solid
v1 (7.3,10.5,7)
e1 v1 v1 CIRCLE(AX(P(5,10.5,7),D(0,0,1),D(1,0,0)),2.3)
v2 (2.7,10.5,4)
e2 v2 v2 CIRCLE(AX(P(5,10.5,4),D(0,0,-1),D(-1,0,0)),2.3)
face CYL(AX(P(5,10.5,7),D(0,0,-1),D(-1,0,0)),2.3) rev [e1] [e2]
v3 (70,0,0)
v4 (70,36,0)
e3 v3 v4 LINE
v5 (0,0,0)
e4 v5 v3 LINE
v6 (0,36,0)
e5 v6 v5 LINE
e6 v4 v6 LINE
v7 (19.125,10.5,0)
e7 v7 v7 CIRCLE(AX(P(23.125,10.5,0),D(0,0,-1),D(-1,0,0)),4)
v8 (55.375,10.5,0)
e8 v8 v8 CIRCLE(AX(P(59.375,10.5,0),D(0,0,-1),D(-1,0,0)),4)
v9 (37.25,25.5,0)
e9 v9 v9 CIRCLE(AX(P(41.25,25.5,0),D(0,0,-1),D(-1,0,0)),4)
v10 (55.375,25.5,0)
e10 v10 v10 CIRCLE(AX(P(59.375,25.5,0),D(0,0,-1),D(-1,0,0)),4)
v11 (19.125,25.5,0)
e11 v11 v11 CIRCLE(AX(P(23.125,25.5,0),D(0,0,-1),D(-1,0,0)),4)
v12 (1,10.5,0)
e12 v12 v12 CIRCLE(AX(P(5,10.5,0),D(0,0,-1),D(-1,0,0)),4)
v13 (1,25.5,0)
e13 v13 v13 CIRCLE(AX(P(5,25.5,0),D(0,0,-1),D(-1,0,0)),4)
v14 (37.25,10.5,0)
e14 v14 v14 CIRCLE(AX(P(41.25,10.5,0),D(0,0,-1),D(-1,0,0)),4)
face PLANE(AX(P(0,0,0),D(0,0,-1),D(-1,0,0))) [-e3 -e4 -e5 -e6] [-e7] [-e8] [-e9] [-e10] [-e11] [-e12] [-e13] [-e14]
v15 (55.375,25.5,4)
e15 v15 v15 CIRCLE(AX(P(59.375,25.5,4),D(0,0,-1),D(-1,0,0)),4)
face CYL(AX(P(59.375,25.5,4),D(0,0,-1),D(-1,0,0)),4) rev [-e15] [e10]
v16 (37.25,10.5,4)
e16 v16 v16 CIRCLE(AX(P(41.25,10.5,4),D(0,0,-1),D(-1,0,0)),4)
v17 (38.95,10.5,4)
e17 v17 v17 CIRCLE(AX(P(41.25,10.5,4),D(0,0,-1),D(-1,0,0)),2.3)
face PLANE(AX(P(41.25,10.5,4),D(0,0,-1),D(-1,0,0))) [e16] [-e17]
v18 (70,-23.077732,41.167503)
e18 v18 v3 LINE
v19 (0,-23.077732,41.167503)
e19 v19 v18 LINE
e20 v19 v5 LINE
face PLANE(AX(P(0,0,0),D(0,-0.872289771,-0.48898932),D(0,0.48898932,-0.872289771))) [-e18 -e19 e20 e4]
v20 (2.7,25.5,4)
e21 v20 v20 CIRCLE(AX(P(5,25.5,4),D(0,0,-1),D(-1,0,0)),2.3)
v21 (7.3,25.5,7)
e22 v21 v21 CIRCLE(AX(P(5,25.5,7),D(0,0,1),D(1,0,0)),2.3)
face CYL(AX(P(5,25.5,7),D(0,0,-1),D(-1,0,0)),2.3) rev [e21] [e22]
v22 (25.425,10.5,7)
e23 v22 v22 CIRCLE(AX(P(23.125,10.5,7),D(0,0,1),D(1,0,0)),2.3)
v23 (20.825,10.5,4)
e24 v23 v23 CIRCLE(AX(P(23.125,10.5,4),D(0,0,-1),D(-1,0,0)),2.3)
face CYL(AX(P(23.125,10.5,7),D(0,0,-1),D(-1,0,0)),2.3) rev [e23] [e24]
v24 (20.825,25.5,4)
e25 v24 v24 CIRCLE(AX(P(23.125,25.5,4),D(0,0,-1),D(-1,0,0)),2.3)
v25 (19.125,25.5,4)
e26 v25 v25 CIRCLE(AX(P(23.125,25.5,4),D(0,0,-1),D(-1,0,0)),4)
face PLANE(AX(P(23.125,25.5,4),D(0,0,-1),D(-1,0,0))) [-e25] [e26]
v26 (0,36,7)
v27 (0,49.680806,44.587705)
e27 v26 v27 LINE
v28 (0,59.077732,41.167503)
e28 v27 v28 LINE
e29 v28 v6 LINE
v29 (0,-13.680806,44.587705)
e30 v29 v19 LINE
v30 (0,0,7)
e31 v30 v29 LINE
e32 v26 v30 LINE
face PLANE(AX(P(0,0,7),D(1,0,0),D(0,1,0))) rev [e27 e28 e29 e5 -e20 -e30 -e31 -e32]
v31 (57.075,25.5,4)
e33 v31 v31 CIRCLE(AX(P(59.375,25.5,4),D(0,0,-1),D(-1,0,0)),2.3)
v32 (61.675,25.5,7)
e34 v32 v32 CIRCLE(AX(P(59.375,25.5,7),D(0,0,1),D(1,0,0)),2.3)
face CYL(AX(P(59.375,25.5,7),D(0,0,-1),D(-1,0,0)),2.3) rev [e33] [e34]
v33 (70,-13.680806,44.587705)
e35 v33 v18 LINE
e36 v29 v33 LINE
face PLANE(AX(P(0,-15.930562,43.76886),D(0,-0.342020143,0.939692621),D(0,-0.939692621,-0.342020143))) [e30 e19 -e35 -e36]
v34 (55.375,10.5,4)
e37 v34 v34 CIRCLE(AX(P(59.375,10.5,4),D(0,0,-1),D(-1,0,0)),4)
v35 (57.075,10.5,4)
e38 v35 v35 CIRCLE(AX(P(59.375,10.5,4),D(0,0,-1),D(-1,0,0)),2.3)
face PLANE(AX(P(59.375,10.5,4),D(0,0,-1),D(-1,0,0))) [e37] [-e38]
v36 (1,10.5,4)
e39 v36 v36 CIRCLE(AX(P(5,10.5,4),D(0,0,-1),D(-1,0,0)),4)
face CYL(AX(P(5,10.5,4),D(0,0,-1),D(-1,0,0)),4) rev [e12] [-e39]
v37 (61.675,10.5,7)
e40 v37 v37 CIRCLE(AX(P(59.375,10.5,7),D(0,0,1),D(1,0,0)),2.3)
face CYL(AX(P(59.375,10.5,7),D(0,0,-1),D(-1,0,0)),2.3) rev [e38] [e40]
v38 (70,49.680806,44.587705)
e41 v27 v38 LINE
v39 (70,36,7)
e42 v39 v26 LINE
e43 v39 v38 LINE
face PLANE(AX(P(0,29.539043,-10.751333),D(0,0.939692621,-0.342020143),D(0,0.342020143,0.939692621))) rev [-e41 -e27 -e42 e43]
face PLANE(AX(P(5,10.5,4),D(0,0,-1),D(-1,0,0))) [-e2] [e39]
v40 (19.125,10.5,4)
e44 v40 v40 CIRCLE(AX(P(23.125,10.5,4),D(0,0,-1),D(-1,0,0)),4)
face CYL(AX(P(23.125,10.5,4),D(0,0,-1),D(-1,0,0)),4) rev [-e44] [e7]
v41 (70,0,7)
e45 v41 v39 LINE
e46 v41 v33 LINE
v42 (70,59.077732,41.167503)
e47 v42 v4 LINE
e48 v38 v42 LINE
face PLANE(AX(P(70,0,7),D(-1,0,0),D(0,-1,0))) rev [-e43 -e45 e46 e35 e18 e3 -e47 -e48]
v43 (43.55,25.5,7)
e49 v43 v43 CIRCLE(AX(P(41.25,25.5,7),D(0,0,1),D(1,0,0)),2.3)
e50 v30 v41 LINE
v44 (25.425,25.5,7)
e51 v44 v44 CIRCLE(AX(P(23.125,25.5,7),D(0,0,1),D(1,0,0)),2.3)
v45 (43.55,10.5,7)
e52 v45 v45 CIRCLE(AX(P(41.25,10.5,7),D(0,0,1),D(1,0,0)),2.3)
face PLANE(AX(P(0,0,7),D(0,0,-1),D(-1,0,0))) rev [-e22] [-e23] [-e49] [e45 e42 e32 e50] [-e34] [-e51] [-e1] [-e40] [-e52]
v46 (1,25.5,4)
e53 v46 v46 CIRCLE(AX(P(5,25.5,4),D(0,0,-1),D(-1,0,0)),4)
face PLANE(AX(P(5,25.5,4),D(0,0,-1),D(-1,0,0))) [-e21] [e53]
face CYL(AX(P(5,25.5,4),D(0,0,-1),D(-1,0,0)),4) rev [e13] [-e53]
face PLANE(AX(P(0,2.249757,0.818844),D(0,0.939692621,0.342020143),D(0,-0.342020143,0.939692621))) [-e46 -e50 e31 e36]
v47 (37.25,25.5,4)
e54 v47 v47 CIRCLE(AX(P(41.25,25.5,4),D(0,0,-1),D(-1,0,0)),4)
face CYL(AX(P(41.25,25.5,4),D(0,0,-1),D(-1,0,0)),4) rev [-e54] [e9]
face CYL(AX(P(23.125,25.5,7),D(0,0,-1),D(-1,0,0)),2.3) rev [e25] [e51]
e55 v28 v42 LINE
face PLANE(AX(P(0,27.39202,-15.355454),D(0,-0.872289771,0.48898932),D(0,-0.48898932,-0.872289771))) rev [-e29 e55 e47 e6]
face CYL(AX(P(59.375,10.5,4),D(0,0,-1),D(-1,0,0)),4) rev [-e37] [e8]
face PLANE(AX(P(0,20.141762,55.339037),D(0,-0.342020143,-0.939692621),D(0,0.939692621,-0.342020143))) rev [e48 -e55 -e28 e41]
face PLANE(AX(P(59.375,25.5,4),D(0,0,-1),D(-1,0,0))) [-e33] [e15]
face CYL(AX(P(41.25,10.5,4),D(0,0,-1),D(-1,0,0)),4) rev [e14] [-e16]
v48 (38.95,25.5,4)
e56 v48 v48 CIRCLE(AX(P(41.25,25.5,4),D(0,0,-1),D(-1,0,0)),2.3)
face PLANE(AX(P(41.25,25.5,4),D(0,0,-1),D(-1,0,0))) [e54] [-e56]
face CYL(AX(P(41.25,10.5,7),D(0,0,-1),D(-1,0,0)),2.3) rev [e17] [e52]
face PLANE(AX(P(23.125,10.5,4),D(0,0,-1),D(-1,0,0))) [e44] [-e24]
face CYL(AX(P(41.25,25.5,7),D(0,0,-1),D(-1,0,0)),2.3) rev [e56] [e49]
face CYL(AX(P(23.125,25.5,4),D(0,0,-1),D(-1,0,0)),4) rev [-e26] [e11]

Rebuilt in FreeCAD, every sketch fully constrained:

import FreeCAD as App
import Part
import Sketcher
Q = App.Units.Quantity


def add_polygon(sketch, points):
    """Adds a closed chain of lines whose ends are joined by coincident constraints."""
    first, n = sketch.GeometryCount, len(points)
    for a, b in zip(points, points[1:] + points[:1]):
        sketch.addGeometry(Part.LineSegment(App.Vector(*a, 0), App.Vector(*b, 0)), False)
    for i in range(n):
        sketch.addConstraint(Sketcher.Constraint("Coincident", first + i, 2, first + (i + 1) % n, 1))

doc = App.newDocument("Part")
body = doc.addObject("PartDesign::Body", "Body")

# Sketch on XY plane
sketch1 = body.newObject("Sketcher::SketchObject", "Sketch")
sketch1.AttachmentSupport = (doc.getObject("XY_Plane"), [""])
sketch1.MapMode = "FlatFace"
add_polygon(sketch1, [(0, 36), (0, 0), (70, 0), (70, 36)])  # lines 0-3
sketch1.addGeometry(Part.Circle(App.Vector(5, 10.5, 0), App.Vector(0, 0, 1), 2.3), False)  # 4
sketch1.addGeometry(Part.Circle(App.Vector(23.1, 10.5, 0), App.Vector(0, 0, 1), 2.3), False)  # 5
sketch1.addGeometry(Part.Circle(App.Vector(41.2, 10.5, 0), App.Vector(0, 0, 1), 2.3), False)  # 6
sketch1.addGeometry(Part.Circle(App.Vector(59.4, 10.5, 0), App.Vector(0, 0, 1), 2.3), False)  # 7
sketch1.addGeometry(Part.Circle(App.Vector(5, 25.5, 0), App.Vector(0, 0, 1), 2.3), False)  # 8
sketch1.addGeometry(Part.Circle(App.Vector(23.1, 25.5, 0), App.Vector(0, 0, 1), 2.3), False)  # 9
sketch1.addGeometry(Part.Circle(App.Vector(41.2, 25.5, 0), App.Vector(0, 0, 1), 2.3), False)  # 10
sketch1.addGeometry(Part.Circle(App.Vector(59.4, 25.5, 0), App.Vector(0, 0, 1), 2.3), False)  # 11
sketch1.addConstraint([
    Sketcher.Constraint("Vertical", 0),
    Sketcher.Constraint("Horizontal", 1),
    Sketcher.Constraint("Vertical", 2),
    Sketcher.Constraint("Horizontal", 3),
    Sketcher.Constraint("Coincident", 0, 2, -1, 1),
    Sketcher.Constraint("Equal", 4, 5),
    Sketcher.Constraint("Equal", 5, 6),
    Sketcher.Constraint("Equal", 6, 7),
    Sketcher.Constraint("Equal", 7, 8),
    Sketcher.Constraint("Equal", 8, 9),
    Sketcher.Constraint("Equal", 9, 10),
    Sketcher.Constraint("Equal", 10, 11),
    Sketcher.Constraint("Horizontal", 4, 3, 5, 3),
    Sketcher.Constraint("Horizontal", 5, 3, 6, 3),
    Sketcher.Constraint("Horizontal", 6, 3, 7, 3),
    Sketcher.Constraint("Horizontal", 8, 3, 9, 3),
    Sketcher.Constraint("Horizontal", 9, 3, 10, 3),
    Sketcher.Constraint("Horizontal", 10, 3, 11, 3),
    Sketcher.Constraint("Vertical", 4, 3, 8, 3),
    Sketcher.Constraint("Vertical", 5, 3, 9, 3),
    Sketcher.Constraint("Vertical", 6, 3, 10, 3),
    Sketcher.Constraint("Vertical", 7, 3, 11, 3),
    Sketcher.Constraint("Diameter", 4, Q("4.6 mm")),
    Sketcher.Constraint("DistanceX", 1, 1, 1, 2, Q("70 mm")),
    Sketcher.Constraint("DistanceY", 0, 2, 0, 1, Q("36 mm")),
    Sketcher.Constraint("DistanceX", -1, 1, 4, 3, Q("5 mm")),
    Sketcher.Constraint("DistanceY", 4, 3, 8, 3, Q("15 mm")),
    Sketcher.Constraint("DistanceY", -1, 1, 4, 3, Q("10.5 mm")),
    Sketcher.Constraint("DistanceX", -1, 1, 6, 3, Q("41.25 mm")),
    Sketcher.Constraint("DistanceX", 5, 3, 7, 3, Q("36.25 mm")),
    Sketcher.Constraint("DistanceX", -1, 1, 5, 3, Q("23.125 mm")),
])
pad1 = body.newObject("PartDesign::Pad", "Pad")
pad1.Profile = sketch1
pad1.Length = 7

# Sketch on XY plane
sketch2 = body.newObject("Sketcher::SketchObject", "Sketch001")
sketch2.AttachmentSupport = (doc.getObject("XY_Plane"), [""])
sketch2.MapMode = "FlatFace"
sketch2.addGeometry([
    Part.Circle(App.Vector(59.4, 25.5, 0), App.Vector(0, 0, 1), 4),  # 0
    Part.Circle(App.Vector(41.2, 25.5, 0), App.Vector(0, 0, 1), 4),  # 1
    Part.Circle(App.Vector(23.1, 25.5, 0), App.Vector(0, 0, 1), 4),  # 2
    Part.Circle(App.Vector(5, 25.5, 0), App.Vector(0, 0, 1), 4),  # 3
    Part.Circle(App.Vector(5, 10.5, 0), App.Vector(0, 0, 1), 4),  # 4
    Part.Circle(App.Vector(23.1, 10.5, 0), App.Vector(0, 0, 1), 4),  # 5
    Part.Circle(App.Vector(41.2, 10.5, 0), App.Vector(0, 0, 1), 4),  # 6
    Part.Circle(App.Vector(59.4, 10.5, 0), App.Vector(0, 0, 1), 4),  # 7
], False)
sketch2.addConstraint([
    Sketcher.Constraint("Equal", 0, 1),
    Sketcher.Constraint("Equal", 1, 2),
    Sketcher.Constraint("Equal", 2, 3),
    Sketcher.Constraint("Equal", 3, 4),
    Sketcher.Constraint("Equal", 4, 5),
    Sketcher.Constraint("Equal", 5, 6),
    Sketcher.Constraint("Equal", 6, 7),
    Sketcher.Constraint("Horizontal", 0, 3, 1, 3),
    Sketcher.Constraint("Horizontal", 1, 3, 2, 3),
    Sketcher.Constraint("Horizontal", 2, 3, 3, 3),
    Sketcher.Constraint("Horizontal", 4, 3, 5, 3),
    Sketcher.Constraint("Horizontal", 5, 3, 6, 3),
    Sketcher.Constraint("Horizontal", 6, 3, 7, 3),
    Sketcher.Constraint("Vertical", 3, 3, 4, 3),
    Sketcher.Constraint("Vertical", 2, 3, 5, 3),
    Sketcher.Constraint("Vertical", 1, 3, 6, 3),
    Sketcher.Constraint("Vertical", 0, 3, 7, 3),
    Sketcher.Constraint("Diameter", 0, Q("8 mm")),
    Sketcher.Constraint("DistanceX", -1, 1, 3, 3, Q("5 mm")),
    Sketcher.Constraint("DistanceY", 4, 3, 3, 3, Q("15 mm")),
    Sketcher.Constraint("DistanceY", -1, 1, 0, 3, Q("25.5 mm")),
    Sketcher.Constraint("DistanceX", -1, 1, 1, 3, Q("41.25 mm")),
    Sketcher.Constraint("DistanceX", 2, 3, 0, 3, Q("36.25 mm")),
    Sketcher.Constraint("DistanceX", -1, 1, 0, 3, Q("59.375 mm")),
])
pocket1 = body.newObject("PartDesign::Pocket", "Pocket")
pocket1.Profile = sketch2
pocket1.Length = 4
pocket1.Reversed = True

# Sketch on YZ plane
sketch3 = body.newObject("Sketcher::SketchObject", "Sketch002")
sketch3.AttachmentSupport = (doc.getObject("YZ_Plane"), [""])
sketch3.MapMode = "FlatFace"
sketch3.AttachmentOffset = App.Placement(App.Vector(0, 0, 70), App.Rotation())
add_polygon(sketch3, [(36, 0), (59, 41), (50, 45), (36, 7)])  # lines 0-3
add_polygon(sketch3, [(-14, 45), (-23, 41), (0, 0), (0, 7)])  # lines 4-7
sketch3.addConstraint([
    Sketcher.Constraint("Vertical", 3),
    Sketcher.Constraint("Vertical", 6),
    Sketcher.Constraint("Coincident", 5, 2, -1, 1),
    Sketcher.Constraint("PointOnObject", 3, 2, -1),
    Sketcher.Constraint("Perpendicular", 1, 2),
    Sketcher.Constraint("Perpendicular", 4, 7),
    Sketcher.Constraint("Horizontal", 0, 2, 4, 2),
    Sketcher.Constraint("Horizontal", 2, 2, 6, 2),
    Sketcher.Constraint("Horizontal", 1, 2, 7, 2),
    Sketcher.Constraint("Equal", 1, 4),
    Sketcher.Constraint("DistanceY", 3, 2, 3, 1, Q("7 mm")),
    Sketcher.Constraint("Angle", 1, Q("160 deg")),
    Sketcher.Constraint("Distance", 1, Q("10 mm")),
    Sketcher.Constraint("Distance", 2, Q("40 mm")),
    Sketcher.Constraint("DistanceX", -1, 1, 2, 2, Q("36 mm")),
])
pad2 = body.newObject("PartDesign::Pad", "Pad001")
pad2.Profile = sketch3
pad2.Length = 70
pad2.Reversed = True

doc.recompute()
